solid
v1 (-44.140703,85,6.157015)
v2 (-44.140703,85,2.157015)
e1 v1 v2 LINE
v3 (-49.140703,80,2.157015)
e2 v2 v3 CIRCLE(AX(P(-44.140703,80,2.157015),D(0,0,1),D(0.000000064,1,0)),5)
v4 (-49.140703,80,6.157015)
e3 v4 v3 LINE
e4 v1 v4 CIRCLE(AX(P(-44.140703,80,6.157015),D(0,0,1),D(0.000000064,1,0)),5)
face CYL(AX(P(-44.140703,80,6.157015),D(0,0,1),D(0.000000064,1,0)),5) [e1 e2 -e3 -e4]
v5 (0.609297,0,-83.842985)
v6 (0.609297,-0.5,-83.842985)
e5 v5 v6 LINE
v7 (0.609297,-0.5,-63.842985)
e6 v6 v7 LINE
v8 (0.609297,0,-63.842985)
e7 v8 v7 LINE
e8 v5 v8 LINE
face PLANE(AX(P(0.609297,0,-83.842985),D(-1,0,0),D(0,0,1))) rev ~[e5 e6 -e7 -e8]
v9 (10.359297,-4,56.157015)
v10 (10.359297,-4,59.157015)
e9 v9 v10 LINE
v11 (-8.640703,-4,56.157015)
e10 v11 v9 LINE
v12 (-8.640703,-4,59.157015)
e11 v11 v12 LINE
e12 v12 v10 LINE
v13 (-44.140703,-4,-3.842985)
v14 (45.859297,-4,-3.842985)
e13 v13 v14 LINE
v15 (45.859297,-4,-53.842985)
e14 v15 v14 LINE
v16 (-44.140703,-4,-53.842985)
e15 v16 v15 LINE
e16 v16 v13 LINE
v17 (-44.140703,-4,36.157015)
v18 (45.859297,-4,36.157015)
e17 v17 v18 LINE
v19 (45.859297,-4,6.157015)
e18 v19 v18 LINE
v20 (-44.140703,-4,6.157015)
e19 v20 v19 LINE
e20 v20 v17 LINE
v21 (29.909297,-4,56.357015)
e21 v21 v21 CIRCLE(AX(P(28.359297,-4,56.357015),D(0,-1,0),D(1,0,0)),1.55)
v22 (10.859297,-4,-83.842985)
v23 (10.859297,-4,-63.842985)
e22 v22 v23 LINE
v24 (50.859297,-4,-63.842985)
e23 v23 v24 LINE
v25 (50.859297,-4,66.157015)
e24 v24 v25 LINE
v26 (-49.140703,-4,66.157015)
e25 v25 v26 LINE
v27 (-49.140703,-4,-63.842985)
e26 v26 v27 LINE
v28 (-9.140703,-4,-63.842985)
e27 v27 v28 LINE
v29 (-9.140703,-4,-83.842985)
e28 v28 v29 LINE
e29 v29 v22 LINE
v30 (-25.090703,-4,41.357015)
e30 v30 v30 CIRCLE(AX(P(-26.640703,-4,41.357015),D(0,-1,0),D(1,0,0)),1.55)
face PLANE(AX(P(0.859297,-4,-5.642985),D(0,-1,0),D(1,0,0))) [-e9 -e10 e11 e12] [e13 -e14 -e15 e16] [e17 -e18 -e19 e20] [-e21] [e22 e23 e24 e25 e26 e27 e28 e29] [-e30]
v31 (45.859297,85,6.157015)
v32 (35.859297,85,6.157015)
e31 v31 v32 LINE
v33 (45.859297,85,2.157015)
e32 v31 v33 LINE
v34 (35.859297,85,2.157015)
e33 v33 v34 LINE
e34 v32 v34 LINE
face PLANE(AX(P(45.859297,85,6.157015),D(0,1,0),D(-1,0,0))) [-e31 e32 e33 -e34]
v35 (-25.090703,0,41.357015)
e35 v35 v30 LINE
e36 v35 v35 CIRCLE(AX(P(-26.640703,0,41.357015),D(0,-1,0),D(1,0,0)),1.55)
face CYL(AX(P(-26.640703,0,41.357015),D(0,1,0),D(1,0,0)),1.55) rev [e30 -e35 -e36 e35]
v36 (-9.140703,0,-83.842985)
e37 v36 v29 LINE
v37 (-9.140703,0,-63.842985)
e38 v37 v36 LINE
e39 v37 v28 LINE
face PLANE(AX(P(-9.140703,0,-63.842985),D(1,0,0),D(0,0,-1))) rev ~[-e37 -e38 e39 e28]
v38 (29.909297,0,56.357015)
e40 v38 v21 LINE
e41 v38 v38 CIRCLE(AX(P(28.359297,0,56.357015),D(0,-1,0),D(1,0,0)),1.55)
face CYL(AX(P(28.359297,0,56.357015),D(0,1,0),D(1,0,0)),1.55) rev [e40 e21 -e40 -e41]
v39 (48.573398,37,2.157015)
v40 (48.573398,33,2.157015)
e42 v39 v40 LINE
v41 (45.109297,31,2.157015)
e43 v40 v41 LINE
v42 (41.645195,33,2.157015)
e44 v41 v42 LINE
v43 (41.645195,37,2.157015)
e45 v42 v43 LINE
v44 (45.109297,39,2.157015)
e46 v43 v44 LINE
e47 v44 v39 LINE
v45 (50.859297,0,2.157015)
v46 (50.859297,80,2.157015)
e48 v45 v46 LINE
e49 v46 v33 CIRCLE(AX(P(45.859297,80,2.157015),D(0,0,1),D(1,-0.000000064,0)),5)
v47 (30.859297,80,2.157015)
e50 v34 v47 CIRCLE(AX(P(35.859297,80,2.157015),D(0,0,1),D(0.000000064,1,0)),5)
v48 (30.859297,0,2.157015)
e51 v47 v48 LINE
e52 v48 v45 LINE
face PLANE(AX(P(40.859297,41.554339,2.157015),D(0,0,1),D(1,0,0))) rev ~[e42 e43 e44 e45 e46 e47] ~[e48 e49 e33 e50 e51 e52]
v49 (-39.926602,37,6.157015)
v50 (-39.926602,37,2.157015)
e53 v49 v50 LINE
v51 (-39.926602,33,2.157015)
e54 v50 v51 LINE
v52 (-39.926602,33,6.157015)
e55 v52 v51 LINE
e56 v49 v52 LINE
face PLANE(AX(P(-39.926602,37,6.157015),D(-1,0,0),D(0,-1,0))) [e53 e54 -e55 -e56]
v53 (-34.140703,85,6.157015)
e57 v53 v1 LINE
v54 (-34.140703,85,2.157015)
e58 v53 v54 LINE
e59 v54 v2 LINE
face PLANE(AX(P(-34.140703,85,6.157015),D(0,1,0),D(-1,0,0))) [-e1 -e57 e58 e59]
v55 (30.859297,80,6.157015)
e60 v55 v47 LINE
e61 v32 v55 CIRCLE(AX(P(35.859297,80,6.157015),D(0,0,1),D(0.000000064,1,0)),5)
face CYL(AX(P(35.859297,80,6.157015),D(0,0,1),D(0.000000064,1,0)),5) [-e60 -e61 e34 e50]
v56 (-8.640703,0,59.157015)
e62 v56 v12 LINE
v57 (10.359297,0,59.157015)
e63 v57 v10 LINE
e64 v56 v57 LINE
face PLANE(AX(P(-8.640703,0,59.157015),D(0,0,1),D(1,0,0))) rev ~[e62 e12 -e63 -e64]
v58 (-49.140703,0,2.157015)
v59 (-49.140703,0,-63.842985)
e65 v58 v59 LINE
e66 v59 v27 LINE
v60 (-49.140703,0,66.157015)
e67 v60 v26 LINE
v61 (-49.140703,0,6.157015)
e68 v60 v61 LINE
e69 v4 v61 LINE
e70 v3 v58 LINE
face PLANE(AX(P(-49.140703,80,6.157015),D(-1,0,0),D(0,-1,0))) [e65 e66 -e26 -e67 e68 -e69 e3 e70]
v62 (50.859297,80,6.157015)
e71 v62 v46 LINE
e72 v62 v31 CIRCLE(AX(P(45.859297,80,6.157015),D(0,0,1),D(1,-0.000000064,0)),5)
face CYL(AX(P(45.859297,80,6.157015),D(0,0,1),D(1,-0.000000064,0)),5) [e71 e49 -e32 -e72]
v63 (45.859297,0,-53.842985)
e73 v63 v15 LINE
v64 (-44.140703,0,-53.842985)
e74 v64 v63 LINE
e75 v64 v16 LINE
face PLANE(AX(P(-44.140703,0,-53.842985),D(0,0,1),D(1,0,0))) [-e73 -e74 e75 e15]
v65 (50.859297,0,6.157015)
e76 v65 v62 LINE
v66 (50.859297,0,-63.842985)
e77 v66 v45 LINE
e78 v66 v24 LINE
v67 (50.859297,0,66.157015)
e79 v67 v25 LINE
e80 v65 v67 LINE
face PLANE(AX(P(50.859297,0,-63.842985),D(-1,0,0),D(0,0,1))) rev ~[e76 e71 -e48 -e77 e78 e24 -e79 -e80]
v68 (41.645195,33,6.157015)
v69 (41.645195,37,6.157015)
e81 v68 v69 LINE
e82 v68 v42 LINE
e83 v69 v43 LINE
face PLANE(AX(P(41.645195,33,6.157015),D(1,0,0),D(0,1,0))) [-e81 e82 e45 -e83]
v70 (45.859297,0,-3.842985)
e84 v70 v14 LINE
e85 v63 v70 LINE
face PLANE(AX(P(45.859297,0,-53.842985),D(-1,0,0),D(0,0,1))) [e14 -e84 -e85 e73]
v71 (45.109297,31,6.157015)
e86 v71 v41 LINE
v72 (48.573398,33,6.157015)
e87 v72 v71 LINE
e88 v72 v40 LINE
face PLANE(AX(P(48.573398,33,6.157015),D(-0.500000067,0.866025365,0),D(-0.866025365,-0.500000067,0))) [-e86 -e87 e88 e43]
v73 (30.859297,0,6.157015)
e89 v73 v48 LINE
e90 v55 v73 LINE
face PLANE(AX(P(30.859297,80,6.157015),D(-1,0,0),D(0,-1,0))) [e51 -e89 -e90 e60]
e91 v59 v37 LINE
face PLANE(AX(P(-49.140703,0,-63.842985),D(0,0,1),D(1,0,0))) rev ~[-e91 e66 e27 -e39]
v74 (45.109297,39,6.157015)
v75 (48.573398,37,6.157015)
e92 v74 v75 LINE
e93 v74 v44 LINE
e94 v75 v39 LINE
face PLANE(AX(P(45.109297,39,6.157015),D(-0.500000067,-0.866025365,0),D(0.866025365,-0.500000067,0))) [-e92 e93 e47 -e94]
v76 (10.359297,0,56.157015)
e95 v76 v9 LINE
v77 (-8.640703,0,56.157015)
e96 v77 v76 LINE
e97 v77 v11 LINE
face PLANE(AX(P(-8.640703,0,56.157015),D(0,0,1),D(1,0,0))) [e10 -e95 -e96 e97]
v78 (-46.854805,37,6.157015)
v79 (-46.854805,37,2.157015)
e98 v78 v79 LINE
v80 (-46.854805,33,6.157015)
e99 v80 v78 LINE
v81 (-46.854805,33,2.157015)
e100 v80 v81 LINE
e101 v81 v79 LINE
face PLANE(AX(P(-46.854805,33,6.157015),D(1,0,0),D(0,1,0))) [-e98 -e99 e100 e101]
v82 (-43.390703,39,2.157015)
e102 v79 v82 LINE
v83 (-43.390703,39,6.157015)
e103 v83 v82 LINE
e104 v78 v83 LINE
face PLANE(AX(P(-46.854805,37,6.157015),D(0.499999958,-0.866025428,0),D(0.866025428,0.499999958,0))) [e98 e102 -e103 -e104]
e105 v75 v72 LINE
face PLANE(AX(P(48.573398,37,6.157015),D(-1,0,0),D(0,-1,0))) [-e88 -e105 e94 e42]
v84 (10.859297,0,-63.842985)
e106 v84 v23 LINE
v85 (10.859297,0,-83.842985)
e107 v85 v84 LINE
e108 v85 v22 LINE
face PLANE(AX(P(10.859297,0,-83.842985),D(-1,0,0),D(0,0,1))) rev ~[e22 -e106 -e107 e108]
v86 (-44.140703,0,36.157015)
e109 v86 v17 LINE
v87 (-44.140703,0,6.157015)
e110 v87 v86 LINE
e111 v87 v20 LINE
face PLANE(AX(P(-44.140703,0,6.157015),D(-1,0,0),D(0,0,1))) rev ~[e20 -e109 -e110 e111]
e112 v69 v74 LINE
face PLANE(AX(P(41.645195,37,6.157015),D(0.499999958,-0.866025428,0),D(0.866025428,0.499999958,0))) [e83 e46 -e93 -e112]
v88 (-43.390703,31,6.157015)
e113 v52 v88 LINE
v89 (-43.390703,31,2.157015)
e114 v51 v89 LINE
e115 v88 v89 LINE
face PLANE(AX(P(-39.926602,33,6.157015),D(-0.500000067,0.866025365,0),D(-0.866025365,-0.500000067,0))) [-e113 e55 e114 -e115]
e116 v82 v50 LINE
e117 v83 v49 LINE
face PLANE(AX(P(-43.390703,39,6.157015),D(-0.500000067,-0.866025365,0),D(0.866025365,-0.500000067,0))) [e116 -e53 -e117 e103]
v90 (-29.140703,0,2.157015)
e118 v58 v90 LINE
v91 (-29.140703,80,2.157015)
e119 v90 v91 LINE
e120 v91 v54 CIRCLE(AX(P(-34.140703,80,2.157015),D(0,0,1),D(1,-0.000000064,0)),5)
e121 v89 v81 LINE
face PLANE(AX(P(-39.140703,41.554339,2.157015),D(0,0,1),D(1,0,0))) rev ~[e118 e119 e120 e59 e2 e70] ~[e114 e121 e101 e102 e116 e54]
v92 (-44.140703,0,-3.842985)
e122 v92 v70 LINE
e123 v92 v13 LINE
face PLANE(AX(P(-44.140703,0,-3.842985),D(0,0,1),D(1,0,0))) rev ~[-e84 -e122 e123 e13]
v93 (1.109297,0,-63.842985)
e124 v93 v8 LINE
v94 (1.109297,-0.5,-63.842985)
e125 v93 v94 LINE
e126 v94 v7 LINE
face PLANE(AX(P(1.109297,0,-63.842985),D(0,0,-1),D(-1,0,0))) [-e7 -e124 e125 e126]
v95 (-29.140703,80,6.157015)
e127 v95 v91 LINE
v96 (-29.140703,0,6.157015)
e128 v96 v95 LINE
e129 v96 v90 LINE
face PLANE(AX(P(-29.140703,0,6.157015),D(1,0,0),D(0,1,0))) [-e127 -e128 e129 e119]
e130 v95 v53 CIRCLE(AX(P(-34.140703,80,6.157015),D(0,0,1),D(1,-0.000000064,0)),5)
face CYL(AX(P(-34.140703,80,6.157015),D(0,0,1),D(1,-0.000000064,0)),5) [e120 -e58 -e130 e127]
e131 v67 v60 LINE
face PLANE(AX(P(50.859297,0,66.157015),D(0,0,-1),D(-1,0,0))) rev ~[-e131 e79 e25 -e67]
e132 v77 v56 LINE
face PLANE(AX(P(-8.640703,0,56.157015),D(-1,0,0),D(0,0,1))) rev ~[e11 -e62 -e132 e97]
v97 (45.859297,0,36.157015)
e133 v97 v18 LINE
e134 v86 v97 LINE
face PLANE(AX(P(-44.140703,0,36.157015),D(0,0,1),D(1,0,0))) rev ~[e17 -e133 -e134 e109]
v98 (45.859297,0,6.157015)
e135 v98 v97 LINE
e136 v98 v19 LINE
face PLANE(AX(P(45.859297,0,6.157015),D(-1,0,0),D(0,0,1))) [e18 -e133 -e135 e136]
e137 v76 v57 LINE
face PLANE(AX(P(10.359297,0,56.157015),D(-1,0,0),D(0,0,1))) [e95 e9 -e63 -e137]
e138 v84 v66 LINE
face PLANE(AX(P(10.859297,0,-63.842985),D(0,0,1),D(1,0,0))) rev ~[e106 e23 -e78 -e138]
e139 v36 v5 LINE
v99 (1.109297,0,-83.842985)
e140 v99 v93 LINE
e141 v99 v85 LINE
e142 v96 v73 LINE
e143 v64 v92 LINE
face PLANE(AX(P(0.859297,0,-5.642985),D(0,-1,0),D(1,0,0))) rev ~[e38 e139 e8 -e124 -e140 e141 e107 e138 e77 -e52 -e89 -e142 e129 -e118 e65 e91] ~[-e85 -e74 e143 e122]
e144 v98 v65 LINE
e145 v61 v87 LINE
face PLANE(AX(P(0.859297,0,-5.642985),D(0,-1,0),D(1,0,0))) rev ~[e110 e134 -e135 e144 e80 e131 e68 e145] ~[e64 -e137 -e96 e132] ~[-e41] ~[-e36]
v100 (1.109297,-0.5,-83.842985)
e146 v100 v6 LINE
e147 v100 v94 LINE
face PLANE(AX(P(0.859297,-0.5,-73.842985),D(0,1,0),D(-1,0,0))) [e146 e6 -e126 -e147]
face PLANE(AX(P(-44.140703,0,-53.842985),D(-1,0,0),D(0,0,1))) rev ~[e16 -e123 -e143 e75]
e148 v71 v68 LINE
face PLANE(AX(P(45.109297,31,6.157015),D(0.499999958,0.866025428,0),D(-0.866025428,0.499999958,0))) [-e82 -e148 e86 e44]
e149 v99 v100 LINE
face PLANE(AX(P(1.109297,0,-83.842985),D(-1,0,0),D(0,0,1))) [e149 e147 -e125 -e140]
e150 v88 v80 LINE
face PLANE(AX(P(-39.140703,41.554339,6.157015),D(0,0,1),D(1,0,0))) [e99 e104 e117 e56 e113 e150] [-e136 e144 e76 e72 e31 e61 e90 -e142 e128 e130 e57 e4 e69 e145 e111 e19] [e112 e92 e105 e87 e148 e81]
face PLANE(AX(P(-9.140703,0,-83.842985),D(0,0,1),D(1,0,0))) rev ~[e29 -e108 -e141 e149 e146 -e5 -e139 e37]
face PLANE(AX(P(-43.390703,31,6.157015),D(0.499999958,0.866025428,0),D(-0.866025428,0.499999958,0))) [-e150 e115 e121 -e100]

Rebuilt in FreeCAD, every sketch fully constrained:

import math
import FreeCAD as App
import Part
import Sketcher
Q = App.Units.Quantity


def add_polygon(sketch, points):
    """Adds a closed chain of lines whose ends are joined by coincident constraints."""
    first, n = sketch.GeometryCount, len(points)
    for a, b in zip(points, points[1:] + points[:1]):
        sketch.addGeometry(Part.LineSegment(App.Vector(*a, 0), App.Vector(*b, 0)), False)
    for i in range(n):
        sketch.addConstraint(Sketcher.Constraint("Coincident", first + i, 2, first + (i + 1) % n, 1))

doc = App.newDocument("Part")
body = doc.addObject("PartDesign::Body", "Body")

sketch1 = body.newObject("Sketcher::SketchObject", "Sketch")
sketch1.AttachmentSupport = (doc.getObject("XZ_Plane"), [""])
sketch1.MapMode = "FlatFace"
add_polygon(sketch1, [(50.9, 66.2), (-49.1, 66.2), (-49.1, -63.8), (-9.1, -63.8), (-9.1, -83.8), (10.9, -83.8), (10.9, -63.8), (50.9, -63.8)])
add_polygon(sketch1, [(45.9, -53.8), (-44.1, -53.8), (-44.1, -3.8), (45.9, -3.8)])
sketch1.addGeometry(Part.Circle(App.Vector(-26.6, 41.4, 0), App.Vector(0, 0, 1), 1.6), False)
add_polygon(sketch1, [(45.9, 6.2), (-44.1, 6.2), (-44.1, 36.2), (45.9, 36.2)])
add_polygon(sketch1, [(10.4, 56.2), (-8.6, 56.2), (-8.6, 59.2), (10.4, 59.2)])
sketch1.addGeometry(Part.Circle(App.Vector(28.4, 56.4, 0), App.Vector(0, 0, 1), 1.6), False)
sketch1.addConstraint([
    Sketcher.Constraint("Horizontal", 0),
    Sketcher.Constraint("Vertical", 1),
    Sketcher.Constraint("Horizontal", 2),
    Sketcher.Constraint("Vertical", 3),
    Sketcher.Constraint("Horizontal", 4),
    Sketcher.Constraint("Vertical", 5),
    Sketcher.Constraint("Horizontal", 6),
    Sketcher.Constraint("Vertical", 7),
    Sketcher.Constraint("Horizontal", 8),
    Sketcher.Constraint("Vertical", 9),
    Sketcher.Constraint("Horizontal", 10),
    Sketcher.Constraint("Vertical", 11),
    Sketcher.Constraint("Horizontal", 13),
    Sketcher.Constraint("Vertical", 14),
    Sketcher.Constraint("Horizontal", 15),
    Sketcher.Constraint("Vertical", 16),
    Sketcher.Constraint("Horizontal", 17),
    Sketcher.Constraint("Vertical", 18),
    Sketcher.Constraint("Horizontal", 19),
    Sketcher.Constraint("Vertical", 20),
    Sketcher.Constraint("Equal", 12, 21),
    Sketcher.Constraint("Horizontal", 2, 2, 5, 2),
    Sketcher.Constraint("Vertical", 9, 2, 13, 2),
    Sketcher.Constraint("Vertical", 11, 2, 15, 2),
    Sketcher.Constraint("Equal", 2, 6),
    Sketcher.Constraint("Equal", 4, 3),
    Sketcher.Constraint("Diameter", 12, 3.1),
    Sketcher.Constraint("DistanceX", 0, 2, 0, 1, 100.0),
    Sketcher.Constraint("DistanceX", 2, 1, 2, 2, 40.0),
    Sketcher.Constraint("DistanceX", 8, 2, 8, 1, 90.0),
    Sketcher.Constraint("DistanceX", 17, 2, 17, 1, 19.0),
    Sketcher.Constraint("DistanceY", 1, 2, 1, 1, 130.0),
    Sketcher.Constraint("DistanceY", 9, 1, 9, 2, 50.0),
    Sketcher.Constraint("DistanceY", 14, 1, 14, 2, 30.0),
    Sketcher.Constraint("DistanceY", 18, 1, 18, 2, 3.0),
    Sketcher.Constraint("DistanceX", 12, 3, 21, 3, 55.0),
    Sketcher.Constraint("DistanceY", 12, 3, 21, 3, 15.0),
    Sketcher.Constraint("DistanceX", 1, 2, 8, 2, 5.0),
    Sketcher.Constraint("DistanceY", 1, 2, 8, 2, 10.0),
    Sketcher.Constraint("DistanceY", 9, 2, 13, 2, 10.0),
    Sketcher.Constraint("DistanceX", 12, 3, 17, 2, 18.0),
    Sketcher.Constraint("DistanceY", 14, 2, 17, 2, 20.0),
    Sketcher.Constraint("DistanceX", 0, 2, 12, 3, 22.5),
    Sketcher.Constraint("DistanceY", 12, 3, 0, 2, 24.8),
    Sketcher.Constraint("DistanceX", 12, 3, -1, 1, 26.640703),
    Sketcher.Constraint("DistanceY", -1, 1, 12, 3, 41.357015),
])
pad1 = body.newObject("PartDesign::Pad", "Pad")
pad1.Profile = sketch1
pad1.Length = 4

sketch2 = body.newObject("Sketcher::SketchObject", "Sketch001")
sketch2.AttachmentSupport = (doc.getObject("XY_Plane"), [""])
sketch2.MapMode = "FlatFace"
sketch2.AttachmentOffset = App.Placement(App.Vector(0, 0, 6.157015), App.Rotation())
sketch2.addGeometry(Part.LineSegment(App.Vector(-49.1, 80, 0), App.Vector(-49.1, 0, 0)), False)
sketch2.addGeometry(Part.LineSegment(App.Vector(-49.1, 0, 0), App.Vector(-29.1, 0, 0)), False)
sketch2.addGeometry(Part.LineSegment(App.Vector(-29.1, 0, 0), App.Vector(-29.1, 80, 0)), False)
sketch2.addGeometry(Part.ArcOfCircle(Part.Circle(App.Vector(-34.1, 80, 0), App.Vector(0, 0, 1), 5), math.radians(0), math.radians(90)), False)
sketch2.addGeometry(Part.LineSegment(App.Vector(-34.1, 85, 0), App.Vector(-44.1, 85, 0)), False)
sketch2.addGeometry(Part.ArcOfCircle(Part.Circle(App.Vector(-44.1, 80, 0), App.Vector(0, 0, 1), 5), math.radians(90), math.radians(180)), False)
add_polygon(sketch2, [(-46.9, 33), (-46.9, 37), (-43.4, 39), (-39.9, 37), (-39.9, 33), (-43.4, 31)])
sketch2.addGeometry(Part.LineSegment(App.Vector(30.9, 80, 0), App.Vector(30.9, 0, 0)), False)
sketch2.addGeometry(Part.LineSegment(App.Vector(30.9, 0, 0), App.Vector(50.9, 0, 0)), False)
sketch2.addGeometry(Part.LineSegment(App.Vector(50.9, 0, 0), App.Vector(50.9, 80, 0)), False)
sketch2.addGeometry(Part.ArcOfCircle(Part.Circle(App.Vector(45.9, 80, 0), App.Vector(0, 0, 1), 5), math.radians(0), math.radians(90)), False)
sketch2.addGeometry(Part.LineSegment(App.Vector(45.9, 85, 0), App.Vector(35.9, 85, 0)), False)
sketch2.addGeometry(Part.ArcOfCircle(Part.Circle(App.Vector(35.9, 80, 0), App.Vector(0, 0, 1), 5), math.radians(90), math.radians(180)), False)
add_polygon(sketch2, [(41.6, 37), (45.1, 39), (48.6, 37), (48.6, 33), (45.1, 31), (41.6, 33)])
sketch2.addConstraint([
    Sketcher.Constraint("Coincident", 0, 2, 1, 1),
    Sketcher.Constraint("Coincident", 1, 2, 2, 1),
    Sketcher.Constraint("Tangent", 2, 2, 3, 1),
    Sketcher.Constraint("Tangent", 3, 2, 4, 1),
    Sketcher.Constraint("Tangent", 4, 2, 5, 1),
    Sketcher.Constraint("Tangent", 5, 2, 0, 1),
    Sketcher.Constraint("Coincident", 12, 2, 13, 1),
    Sketcher.Constraint("Coincident", 13, 2, 14, 1),
    Sketcher.Constraint("Tangent", 14, 2, 15, 1),
    Sketcher.Constraint("Tangent", 15, 2, 16, 1),
    Sketcher.Constraint("Tangent", 16, 2, 17, 1),
    Sketcher.Constraint("Tangent", 17, 2, 12, 1),
    Sketcher.Constraint("Vertical", 0),
    Sketcher.Constraint("Horizontal", 1),
    Sketcher.Constraint("Vertical", 2),
    Sketcher.Constraint("Horizontal", 4),
    Sketcher.Constraint("Vertical", 6),
    Sketcher.Constraint("Vertical", 9),
    Sketcher.Constraint("Vertical", 12),
    Sketcher.Constraint("Horizontal", 13),
    Sketcher.Constraint("Vertical", 14),
    Sketcher.Constraint("Horizontal", 16),
    Sketcher.Constraint("Vertical", 20),
    Sketcher.Constraint("Vertical", 23),
    Sketcher.Constraint("Equal", 3, 5),
    Sketcher.Constraint("Equal", 5, 15),
    Sketcher.Constraint("Equal", 15, 17),
    Sketcher.Constraint("PointOnObject", 0, 2, -1),
    Sketcher.Constraint("PointOnObject", 12, 2, -1),
    Sketcher.Constraint("Parallel", 7, 10),
    Sketcher.Constraint("Parallel", 8, 11),
    Sketcher.Constraint("Parallel", 10, 18),
    Sketcher.Constraint("Parallel", 11, 19),
    Sketcher.Constraint("Parallel", 18, 21),
    Sketcher.Constraint("Parallel", 19, 22),
    Sketcher.Constraint("Horizontal", 5, 3, 15, 3),
    Sketcher.Constraint("Horizontal", 6, 2, 8, 2),
    Sketcher.Constraint("Horizontal", 9, 2, 11, 2),
    Sketcher.Constraint("Horizontal", 7, 2, 18, 2),
    Sketcher.Constraint("Horizontal", 8, 2, 19, 2),
    Sketcher.Constraint("Horizontal", 11, 2, 20, 2),
    Sketcher.Constraint("Horizontal", 10, 2, 21, 2),
    Sketcher.Constraint("Horizontal", 20, 2, 22, 2),
    Sketcher.Constraint("Vertical", 7, 2, 10, 2),
    Sketcher.Constraint("Equal", 1, 13),
    Sketcher.Constraint("Radius", 3, 5.0),
    Sketcher.Constraint("DistanceX", 1, 1, 1, 2, 20.0),
    Sketcher.Constraint("DistanceY", 0, 2, 0, 1, 80.0),
    Sketcher.Constraint("DistanceY", 6, 1, 6, 2, 4.0),
    Sketcher.Constraint("Angle", 7, Q("29.999997 deg")),
    Sketcher.Constraint("Distance", 7, 4.0),
    Sketcher.Constraint("DistanceY", -1, 1, 6, 2, 37.0),
    Sketcher.Constraint("DistanceX", 3, 3, 15, 3, 80.0),
    Sketcher.Constraint("DistanceX", 0, 2, 7, 2, 5.75),
    Sketcher.Constraint("DistanceX", 18, 2, 13, 2, 5.75),
    Sketcher.Constraint("DistanceX", 3, 3, -1, 1, 34.140703),
])
pad2 = body.newObject("PartDesign::Pad", "Pad001")
pad2.Profile = sketch2
pad2.Length = 4
pad2.Reversed = True

sketch3 = body.newObject("Sketcher::SketchObject", "Sketch002")
sketch3.AttachmentSupport = (doc.getObject("XZ_Plane"), [""])
sketch3.MapMode = "FlatFace"
add_polygon(sketch3, [(1.1, -63.8), (1.1, -83.8), (0.6, -83.8), (0.6, -63.8)])
sketch3.addConstraint([
    Sketcher.Constraint("Vertical", 0),
    Sketcher.Constraint("Horizontal", 1),
    Sketcher.Constraint("Vertical", 2),
    Sketcher.Constraint("Horizontal", 3),
    Sketcher.Constraint("DistanceY", 0, 2, 0, 1, 20.0),
    Sketcher.Constraint("DistanceX", 1, 2, 1, 1, 0.5),
    Sketcher.Constraint("DistanceX", -1, 1, 0, 2, 1.109297),
    Sketcher.Constraint("DistanceY", 0, 2, -1, 1, 83.842985),
])
pocket1 = body.newObject("PartDesign::Pocket", "Pocket")
pocket1.Profile = sketch3
pocket1.Length = 0.5
pocket1.Reversed = True

doc.recompute()
